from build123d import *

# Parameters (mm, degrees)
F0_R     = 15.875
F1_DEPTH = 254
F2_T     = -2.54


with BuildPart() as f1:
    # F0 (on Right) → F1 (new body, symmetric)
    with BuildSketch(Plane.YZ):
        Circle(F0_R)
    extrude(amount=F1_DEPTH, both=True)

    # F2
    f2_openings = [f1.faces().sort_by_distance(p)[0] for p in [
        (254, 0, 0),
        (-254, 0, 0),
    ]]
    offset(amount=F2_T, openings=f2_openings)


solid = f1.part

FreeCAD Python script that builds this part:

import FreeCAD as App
import Part
import Sketcher
from FreeCAD import Vector
Q = App.Units.Quantity


def faces_at(feature, points):
    """Names of the faces that lie closest to the given points."""
    faces = feature.Shape.Faces
    near = lambda p: min(range(len(faces)), key=lambda i: faces[i].distToShape(Part.Vertex(*p))[0])
    return sorted({f"Face{near(p) + 1}" for p in points})

doc = App.newDocument("Part")
body = doc.addObject("PartDesign::Body", "Body")

# Sketch on YZ plane
sketch1 = body.newObject("Sketcher::SketchObject", "Sketch")
sketch1.AttachmentSupport = (doc.getObject("YZ_Plane"), [""])
sketch1.MapMode = "FlatFace"
sketch1.addGeometry(Part.Circle(Vector(0, 0, 0), Vector(0, 0, 1), 16), False)
sketch1.addConstraint(Sketcher.Constraint("Coincident", 0, 3, -1, 1))
sketch1.addConstraint(Sketcher.Constraint("Diameter", 0, Q("1.25 in")))
pad1 = body.newObject("PartDesign::Pad", "Pad")
pad1.Profile = sketch1
pad1.Length = Q("20 in")
pad1.Midplane = True
doc.recompute()

thickness = body.newObject("PartDesign::Thickness", "Thickness")
thickness.Base = (pad1, faces_at(pad1, [(254, 0, 0), (-254, 0, 0)]))
thickness.Value = Q("0.1 in")
thickness.Reversed = True
thickness.Join = "Arc"

doc.recompute()
